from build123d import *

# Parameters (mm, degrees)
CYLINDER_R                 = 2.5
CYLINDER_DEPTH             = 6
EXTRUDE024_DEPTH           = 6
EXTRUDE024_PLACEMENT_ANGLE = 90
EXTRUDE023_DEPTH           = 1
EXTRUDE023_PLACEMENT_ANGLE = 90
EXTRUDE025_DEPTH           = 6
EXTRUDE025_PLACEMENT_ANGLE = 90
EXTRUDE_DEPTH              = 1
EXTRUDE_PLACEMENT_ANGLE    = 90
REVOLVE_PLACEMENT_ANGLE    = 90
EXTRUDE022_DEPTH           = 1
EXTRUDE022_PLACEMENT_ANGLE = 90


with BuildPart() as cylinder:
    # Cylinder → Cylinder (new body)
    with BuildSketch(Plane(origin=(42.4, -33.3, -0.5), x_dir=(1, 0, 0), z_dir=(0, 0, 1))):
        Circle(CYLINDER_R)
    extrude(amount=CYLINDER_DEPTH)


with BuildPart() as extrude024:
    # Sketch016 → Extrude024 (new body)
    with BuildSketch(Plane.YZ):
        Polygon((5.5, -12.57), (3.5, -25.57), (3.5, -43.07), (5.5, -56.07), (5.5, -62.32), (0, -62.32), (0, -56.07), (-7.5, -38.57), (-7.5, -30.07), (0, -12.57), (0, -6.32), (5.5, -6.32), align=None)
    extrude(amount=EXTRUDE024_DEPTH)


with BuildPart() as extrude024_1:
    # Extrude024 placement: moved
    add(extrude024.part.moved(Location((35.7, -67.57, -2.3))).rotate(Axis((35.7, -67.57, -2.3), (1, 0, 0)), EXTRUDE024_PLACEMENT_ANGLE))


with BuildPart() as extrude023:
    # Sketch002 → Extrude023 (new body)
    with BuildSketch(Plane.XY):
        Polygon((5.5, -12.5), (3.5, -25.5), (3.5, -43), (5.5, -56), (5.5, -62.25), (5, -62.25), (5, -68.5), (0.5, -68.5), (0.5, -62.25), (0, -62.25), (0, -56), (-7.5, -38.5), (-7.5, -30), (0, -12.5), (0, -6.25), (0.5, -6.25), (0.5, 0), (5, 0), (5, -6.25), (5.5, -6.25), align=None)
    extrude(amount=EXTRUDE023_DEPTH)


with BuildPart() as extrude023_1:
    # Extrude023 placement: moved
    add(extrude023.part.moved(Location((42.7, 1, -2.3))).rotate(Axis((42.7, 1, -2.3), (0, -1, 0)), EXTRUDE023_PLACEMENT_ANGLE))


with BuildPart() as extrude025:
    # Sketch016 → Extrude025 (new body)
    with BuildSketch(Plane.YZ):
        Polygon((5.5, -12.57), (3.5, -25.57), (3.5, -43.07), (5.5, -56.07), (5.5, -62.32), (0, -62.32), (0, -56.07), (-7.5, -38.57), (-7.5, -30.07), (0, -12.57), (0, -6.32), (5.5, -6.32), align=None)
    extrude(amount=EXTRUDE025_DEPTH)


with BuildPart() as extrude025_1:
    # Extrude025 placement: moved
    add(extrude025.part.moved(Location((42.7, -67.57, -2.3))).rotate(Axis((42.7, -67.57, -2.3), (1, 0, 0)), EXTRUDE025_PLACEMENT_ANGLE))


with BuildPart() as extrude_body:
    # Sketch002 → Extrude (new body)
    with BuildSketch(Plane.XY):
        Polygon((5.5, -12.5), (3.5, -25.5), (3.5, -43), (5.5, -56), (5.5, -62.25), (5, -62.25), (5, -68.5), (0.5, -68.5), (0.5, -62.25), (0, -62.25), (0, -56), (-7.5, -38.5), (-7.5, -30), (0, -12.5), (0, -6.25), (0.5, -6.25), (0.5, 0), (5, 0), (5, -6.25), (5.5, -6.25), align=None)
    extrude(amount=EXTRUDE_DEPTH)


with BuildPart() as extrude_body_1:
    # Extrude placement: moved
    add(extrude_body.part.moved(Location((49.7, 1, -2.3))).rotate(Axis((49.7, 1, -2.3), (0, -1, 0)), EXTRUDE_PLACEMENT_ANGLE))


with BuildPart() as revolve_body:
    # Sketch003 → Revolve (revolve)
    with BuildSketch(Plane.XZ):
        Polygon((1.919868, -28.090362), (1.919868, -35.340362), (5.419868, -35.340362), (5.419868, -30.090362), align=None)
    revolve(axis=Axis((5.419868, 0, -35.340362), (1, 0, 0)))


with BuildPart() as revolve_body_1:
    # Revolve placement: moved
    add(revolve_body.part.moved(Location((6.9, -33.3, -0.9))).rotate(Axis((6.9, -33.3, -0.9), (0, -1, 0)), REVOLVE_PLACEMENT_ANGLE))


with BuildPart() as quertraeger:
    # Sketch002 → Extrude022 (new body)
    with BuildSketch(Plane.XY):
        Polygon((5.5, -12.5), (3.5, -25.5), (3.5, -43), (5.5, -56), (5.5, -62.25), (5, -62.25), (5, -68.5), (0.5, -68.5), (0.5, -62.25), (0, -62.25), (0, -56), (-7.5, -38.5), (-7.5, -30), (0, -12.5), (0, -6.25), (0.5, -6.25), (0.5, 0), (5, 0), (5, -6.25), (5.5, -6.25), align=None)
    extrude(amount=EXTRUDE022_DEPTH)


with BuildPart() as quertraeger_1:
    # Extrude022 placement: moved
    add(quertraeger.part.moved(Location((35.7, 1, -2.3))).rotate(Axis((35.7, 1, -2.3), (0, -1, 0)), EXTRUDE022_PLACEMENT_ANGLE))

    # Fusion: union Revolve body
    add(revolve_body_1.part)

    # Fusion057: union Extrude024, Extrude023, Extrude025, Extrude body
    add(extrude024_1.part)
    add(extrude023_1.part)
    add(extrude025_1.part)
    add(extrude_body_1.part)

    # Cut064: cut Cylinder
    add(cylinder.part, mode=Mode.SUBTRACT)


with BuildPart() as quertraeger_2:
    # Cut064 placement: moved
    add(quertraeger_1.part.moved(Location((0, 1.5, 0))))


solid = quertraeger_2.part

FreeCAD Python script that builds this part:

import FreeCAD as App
import Part
import Sketcher

V = App.Vector

doc = App.newDocument("Part")
params = doc.addObject("Spreadsheet::Sheet", "Params")
for row, (alias, value) in enumerate([
    ("sketch1_diameter", "5 mm"),
    ("pad1_length", "6 mm"),
    ("sketch2_width", "5.5 mm"),
    ("sketch2_height", "8.5 mm"),
    ("sketch2_height2", "17.5 mm"),
    ("sketch2_height3", "6.25 mm"),
    ("pad2_length", "6 mm"),
    ("sketch3_width", "0.5 mm"),
    ("sketch3_width2", "4.5 mm"),
    ("sketch3_height", "8.5 mm"),
    ("sketch3_height2", "17.5 mm"),
    ("pad3_length", "1 mm"),
    ("sketch4_width", "5.5 mm"),
    ("sketch4_height", "8.5 mm"),
    ("sketch4_height2", "17.5 mm"),
    ("sketch4_height3", "6.25 mm"),
    ("pad4_length", "6 mm"),
    ("sketch5_width", "0.5 mm"),
    ("sketch5_width2", "4.5 mm"),
    ("sketch5_height", "8.5 mm"),
    ("sketch5_height2", "17.5 mm"),
    ("pad5_length", "1 mm"),
    ("sketch6_width", "3.5 mm"),
    ("sketch6_height", "7.25 mm"),
    ("revolution_angle", "360 deg"),
    ("sketch7_width", "0.5 mm"),
    ("sketch7_width2", "4.5 mm"),
    ("sketch7_height", "8.5 mm"),
    ("sketch7_height2", "17.5 mm"),
    ("pad6_length", "1 mm"),
], start=1):
    params.set(f"A{row}", alias)
    params.set(f"B{row}", "=" + value)
    params.setAlias(f"B{row}", alias)

body = doc.addObject("PartDesign::Body", "Body")

# Sketch on XY plane
sketch1 = body.newObject("Sketcher::SketchObject", "Sketch")
sketch1.AttachmentSupport = (doc.getObject("XY_Plane"), [""])
sketch1.MapMode = "FlatFace"
sketch1.AttachmentOffset = App.Placement(V(0, 0, -0.5), App.Rotation())
sketch1.addGeometry(Part.Circle(V(42.4, -33.3, 0), V(0, 0, 1), 2.5), False)
sketch1.addConstraint(Sketcher.Constraint("Diameter", 0, 5.0))
sketch1.addConstraint(Sketcher.Constraint("DistanceX", -1, 1, 0, 3, 42.4))
sketch1.addConstraint(Sketcher.Constraint("DistanceY", 0, 3, -1, 1, 33.3))
sketch1.setExpression("Constraints[0]", "Params.sketch1_diameter")
pad1 = body.newObject("PartDesign::Pad", "Pad")
pad1.Profile = sketch1
pad1.setExpression("Length", "Params.pad1_length")
body2 = doc.addObject("PartDesign::Body", "Body001")

# Sketch on YZ plane
sketch2 = body2.newObject("Sketcher::SketchObject", "Sketch001")
sketch2.AttachmentSupport = (doc.getObject("YZ_Plane001"), [""])
sketch2.MapMode = "FlatFace"
sketch2.addGeometry(Part.LineSegment(V(4, -26, 0), V(6, -13, 0)), False)
sketch2.addGeometry(Part.LineSegment(V(6, -13, 0), V(6, -6, 0)), False)
sketch2.addGeometry(Part.LineSegment(V(6, -6, 0), V(0, -6, 0)), False)
sketch2.addGeometry(Part.LineSegment(V(0, -6, 0), V(0, -13, 0)), False)
sketch2.addGeometry(Part.LineSegment(V(0, -13, 0), V(-8, -30, 0)), False)
sketch2.addGeometry(Part.LineSegment(V(-8, -30, 0), V(-8, -39, 0)), False)
sketch2.addGeometry(Part.LineSegment(V(-8, -39, 0), V(0, -56, 0)), False)
sketch2.addGeometry(Part.LineSegment(V(0, -56, 0), V(0, -62, 0)), False)
sketch2.addGeometry(Part.LineSegment(V(0, -62, 0), V(6, -62, 0)), False)
sketch2.addGeometry(Part.LineSegment(V(6, -62, 0), V(6, -56, 0)), False)
sketch2.addGeometry(Part.LineSegment(V(6, -56, 0), V(4, -43, 0)), False)
sketch2.addGeometry(Part.LineSegment(V(4, -43, 0), V(4, -26, 0)), False)
sketch2.addConstraint(Sketcher.Constraint("Coincident", 0, 2, 1, 1))
sketch2.addConstraint(Sketcher.Constraint("Coincident", 1, 2, 2, 1))
sketch2.addConstraint(Sketcher.Constraint("Coincident", 2, 2, 3, 1))
sketch2.addConstraint(Sketcher.Constraint("Coincident", 3, 2, 4, 1))
sketch2.addConstraint(Sketcher.Constraint("Coincident", 4, 2, 5, 1))
sketch2.addConstraint(Sketcher.Constraint("Coincident", 5, 2, 6, 1))
sketch2.addConstraint(Sketcher.Constraint("Coincident", 6, 2, 7, 1))
sketch2.addConstraint(Sketcher.Constraint("Coincident", 7, 2, 8, 1))
sketch2.addConstraint(Sketcher.Constraint("Coincident", 8, 2, 9, 1))
sketch2.addConstraint(Sketcher.Constraint("Coincident", 9, 2, 10, 1))
sketch2.addConstraint(Sketcher.Constraint("Coincident", 10, 2, 11, 1))
sketch2.addConstraint(Sketcher.Constraint("Coincident", 11, 2, 0, 1))
sketch2.addConstraint(Sketcher.Constraint("Vertical", 1))
sketch2.addConstraint(Sketcher.Constraint("Horizontal", 2))
sketch2.addConstraint(Sketcher.Constraint("Vertical", 3))
sketch2.addConstraint(Sketcher.Constraint("Vertical", 5))
sketch2.addConstraint(Sketcher.Constraint("Vertical", 7))
sketch2.addConstraint(Sketcher.Constraint("Horizontal", 8))
sketch2.addConstraint(Sketcher.Constraint("Vertical", 9))
sketch2.addConstraint(Sketcher.Constraint("Vertical", 11))
sketch2.addConstraint(Sketcher.Constraint("PointOnObject", 2, 2, -2))
sketch2.addConstraint(Sketcher.Constraint("PointOnObject", 6, 2, -2))
sketch2.addConstraint(Sketcher.Constraint("Horizontal", 0, 2, 3, 2))
sketch2.addConstraint(Sketcher.Constraint("Horizontal", 6, 2, 9, 2))
sketch2.addConstraint(Sketcher.Constraint("Vertical", 1, 2, 8, 2))
sketch2.addConstraint(Sketcher.Constraint("Equal", 3, 7))
sketch2.addConstraint(Sketcher.Constraint("Equal", 4, 6))
sketch2.addConstraint(Sketcher.Constraint("Equal", 0, 10))
sketch2.addConstraint(Sketcher.Constraint("DistanceX", 2, 2, 2, 1, 5.5))
sketch2.addConstraint(Sketcher.Constraint("DistanceY", 5, 2, 5, 1, 8.5))
sketch2.addConstraint(Sketcher.Constraint("DistanceY", 11, 1, 11, 2, 17.5))
sketch2.addConstraint(Sketcher.Constraint("DistanceX", 4, 2, 0, 2, 13.0))
sketch2.addConstraint(Sketcher.Constraint("DistanceY", 5, 2, 3, 2, 26.0))
sketch2.addConstraint(Sketcher.Constraint("DistanceX", 5, 2, 10, 2, 11.0))
sketch2.addConstraint(Sketcher.Constraint("DistanceY", 1, 1, 1, 2, 6.25))
sketch2.addConstraint(Sketcher.Constraint("DistanceY", 0, 2, -1, 1, 12.57))
sketch2.setExpression("Constraints[28]", "Params.sketch2_width")
sketch2.setExpression("Constraints[29]", "Params.sketch2_height")
sketch2.setExpression("Constraints[30]", "Params.sketch2_height2")
sketch2.setExpression("Constraints[34]", "Params.sketch2_height3")
pad2 = body2.newObject("PartDesign::Pad", "Pad001")
pad2.Profile = sketch2
pad2.setExpression("Length", "Params.pad2_length")
body3 = doc.addObject("PartDesign::Body", "Body002")
doc.recompute()

body2.Placement = App.Placement(V(35.7, -67.57, -2.3), App.Rotation(V(1, 0, 0), 90))
boolean = body3.newObject("PartDesign::Boolean", "Boolean")
boolean.Type = "Fuse"
boolean.addObjects([body2])
body4 = doc.addObject("PartDesign::Body", "Body003")

# Sketch on XY plane
sketch3 = body4.newObject("Sketcher::SketchObject", "Sketch002")
sketch3.AttachmentSupport = (doc.getObject("XY_Plane003"), [""])
sketch3.MapMode = "FlatFace"
sketch3.addGeometry(Part.LineSegment(V(3.5, -25.5, 0), V(5.5, -12.5, 0)), False)
sketch3.addGeometry(Part.LineSegment(V(5.5, -12.5, 0), V(5.5, -6.2, 0)), False)
sketch3.addGeometry(Part.LineSegment(V(5.5, -6.2, 0), V(5, -6.2, 0)), False)
sketch3.addGeometry(Part.LineSegment(V(5, -6.2, 0), V(5, 0, 0)), False)
sketch3.addGeometry(Part.LineSegment(V(5, 0, 0), V(0.5, 0, 0)), False)
sketch3.addGeometry(Part.LineSegment(V(0.5, 0, 0), V(0.5, -6.2, 0)), False)
sketch3.addGeometry(Part.LineSegment(V(0.5, -6.2, 0), V(0, -6.2, 0)), False)
sketch3.addGeometry(Part.LineSegment(V(0, -6.2, 0), V(0, -12.5, 0)), False)
sketch3.addGeometry(Part.LineSegment(V(0, -12.5, 0), V(-7.5, -30, 0)), False)
sketch3.addGeometry(Part.LineSegment(V(-7.5, -30, 0), V(-7.5, -38.5, 0)), False)
sketch3.addGeometry(Part.LineSegment(V(-7.5, -38.5, 0), V(0, -56, 0)), False)
sketch3.addGeometry(Part.LineSegment(V(0, -56, 0), V(0, -62.2, 0)), False)
sketch3.addGeometry(Part.LineSegment(V(0, -62.2, 0), V(0.5, -62.2, 0)), False)
sketch3.addGeometry(Part.LineSegment(V(0.5, -62.2, 0), V(0.5, -68.5, 0)), False)
sketch3.addGeometry(Part.LineSegment(V(0.5, -68.5, 0), V(5, -68.5, 0)), False)
sketch3.addGeometry(Part.LineSegment(V(5, -68.5, 0), V(5, -62.2, 0)), False)
sketch3.addGeometry(Part.LineSegment(V(5, -62.2, 0), V(5.5, -62.2, 0)), False)
sketch3.addGeometry(Part.LineSegment(V(5.5, -62.2, 0), V(5.5, -56, 0)), False)
sketch3.addGeometry(Part.LineSegment(V(5.5, -56, 0), V(3.5, -43, 0)), False)
sketch3.addGeometry(Part.LineSegment(V(3.5, -43, 0), V(3.5, -25.5, 0)), False)
sketch3.addConstraint(Sketcher.Constraint("Coincident", 0, 2, 1, 1))
sketch3.addConstraint(Sketcher.Constraint("Coincident", 1, 2, 2, 1))
sketch3.addConstraint(Sketcher.Constraint("Coincident", 2, 2, 3, 1))
sketch3.addConstraint(Sketcher.Constraint("Coincident", 3, 2, 4, 1))
sketch3.addConstraint(Sketcher.Constraint("Coincident", 4, 2, 5, 1))
sketch3.addConstraint(Sketcher.Constraint("Coincident", 5, 2, 6, 1))
sketch3.addConstraint(Sketcher.Constraint("Coincident", 6, 2, 7, 1))
sketch3.addConstraint(Sketcher.Constraint("Coincident", 7, 2, 8, 1))
sketch3.addConstraint(Sketcher.Constraint("Coincident", 8, 2, 9, 1))
sketch3.addConstraint(Sketcher.Constraint("Coincident", 9, 2, 10, 1))
sketch3.addConstraint(Sketcher.Constraint("Coincident", 10, 2, 11, 1))
sketch3.addConstraint(Sketcher.Constraint("Coincident", 11, 2, 12, 1))
sketch3.addConstraint(Sketcher.Constraint("Coincident", 12, 2, 13, 1))
sketch3.addConstraint(Sketcher.Constraint("Coincident", 13, 2, 14, 1))
sketch3.addConstraint(Sketcher.Constraint("Coincident", 14, 2, 15, 1))
sketch3.addConstraint(Sketcher.Constraint("Coincident", 15, 2, 16, 1))
sketch3.addConstraint(Sketcher.Constraint("Coincident", 16, 2, 17, 1))
sketch3.addConstraint(Sketcher.Constraint("Coincident", 17, 2, 18, 1))
sketch3.addConstraint(Sketcher.Constraint("Coincident", 18, 2, 19, 1))
sketch3.addConstraint(Sketcher.Constraint("Coincident", 19, 2, 0, 1))
sketch3.addConstraint(Sketcher.Constraint("Vertical", 1))
sketch3.addConstraint(Sketcher.Constraint("Horizontal", 2))
sketch3.addConstraint(Sketcher.Constraint("Vertical", 3))
sketch3.addConstraint(Sketcher.Constraint("Horizontal", 4))
sketch3.addConstraint(Sketcher.Constraint("Vertical", 5))
sketch3.addConstraint(Sketcher.Constraint("Horizontal", 6))
sketch3.addConstraint(Sketcher.Constraint("Vertical", 7))
sketch3.addConstraint(Sketcher.Constraint("Vertical", 9))
sketch3.addConstraint(Sketcher.Constraint("Vertical", 11))
sketch3.addConstraint(Sketcher.Constraint("Horizontal", 12))
sketch3.addConstraint(Sketcher.Constraint("Vertical", 13))
sketch3.addConstraint(Sketcher.Constraint("Horizontal", 14))
sketch3.addConstraint(Sketcher.Constraint("Vertical", 15))
sketch3.addConstraint(Sketcher.Constraint("Horizontal", 16))
sketch3.addConstraint(Sketcher.Constraint("Vertical", 17))
sketch3.addConstraint(Sketcher.Constraint("Vertical", 19))
sketch3.addConstraint(Sketcher.Constraint("PointOnObject", 3, 2, -1))
sketch3.addConstraint(Sketcher.Constraint("PointOnObject", 6, 2, -2))
sketch3.addConstraint(Sketcher.Constraint("PointOnObject", 10, 2, -2))
sketch3.addConstraint(Sketcher.Constraint("Horizontal", 2, 2, 5, 2))
sketch3.addConstraint(Sketcher.Constraint("Horizontal", 0, 2, 7, 2))
sketch3.addConstraint(Sketcher.Constraint("Horizontal", 12, 2, 15, 2))
sketch3.addConstraint(Sketcher.Constraint("Horizontal", 10, 2, 17, 2))
sketch3.addConstraint(Sketcher.Constraint("Vertical", 5, 2, 12, 2))
sketch3.addConstraint(Sketcher.Constraint("Vertical", 3, 2, 14, 2))
sketch3.addConstraint(Sketcher.Constraint("Vertical", 1, 2, 16, 2))
sketch3.addConstraint(Sketcher.Constraint("Equal", 2, 6))
sketch3.addConstraint(Sketcher.Constraint("Equal", 1, 3))
sketch3.addConstraint(Sketcher.Constraint("Equal", 7, 11))
sketch3.addConstraint(Sketcher.Constraint("Equal", 11, 13))
sketch3.addConstraint(Sketcher.Constraint("Equal", 8, 10))
sketch3.addConstraint(Sketcher.Constraint("Equal", 0, 18))
sketch3.addConstraint(Sketcher.Constraint("DistanceX", 2, 2, 2, 1, 0.5))
sketch3.addConstraint(Sketcher.Constraint("DistanceX", 4, 2, 4, 1, 4.5))
sketch3.addConstraint(Sketcher.Constraint("DistanceY", 9, 2, 9, 1, 8.5))
sketch3.addConstraint(Sketcher.Constraint("DistanceY", 19, 1, 19, 2, 17.5))
sketch3.addConstraint(Sketcher.Constraint("DistanceY", 8, 2, -1, 1, 30.0))
sketch3.addConstraint(Sketcher.Constraint("DistanceY", 10, 2, -1, 1, 56.0))
sketch3.addConstraint(Sketcher.Constraint("DistanceX", 8, 2, 0, 2, 13.0))
sketch3.addConstraint(Sketcher.Constraint("DistanceX", 9, 2, 18, 2, 11.0))
sketch3.setExpression("Constraints[52]", "Params.sketch3_width")
sketch3.setExpression("Constraints[53]", "Params.sketch3_width2")
sketch3.setExpression("Constraints[54]", "Params.sketch3_height")
sketch3.setExpression("Constraints[55]", "Params.sketch3_height2")
pad3 = body4.newObject("PartDesign::Pad", "Pad002")
pad3.Profile = sketch3
pad3.setExpression("Length", "Params.pad3_length")
body5 = doc.addObject("PartDesign::Body", "Body004")
doc.recompute()

body4.Placement = App.Placement(V(42.7, 1, -2.3), App.Rotation(V(0, -1, 0), 90))
boolean2 = body5.newObject("PartDesign::Boolean", "Boolean001")
boolean2.Type = "Fuse"
boolean2.addObjects([body4])
body6 = doc.addObject("PartDesign::Body", "Body005")

# Sketch on YZ plane
sketch4 = body6.newObject("Sketcher::SketchObject", "Sketch003")
sketch4.AttachmentSupport = (doc.getObject("YZ_Plane005"), [""])
sketch4.MapMode = "FlatFace"
sketch4.addGeometry(Part.LineSegment(V(4, -26, 0), V(6, -13, 0)), False)
sketch4.addGeometry(Part.LineSegment(V(6, -13, 0), V(6, -6, 0)), False)
sketch4.addGeometry(Part.LineSegment(V(6, -6, 0), V(0, -6, 0)), False)
sketch4.addGeometry(Part.LineSegment(V(0, -6, 0), V(0, -13, 0)), False)
sketch4.addGeometry(Part.LineSegment(V(0, -13, 0), V(-8, -30, 0)), False)
sketch4.addGeometry(Part.LineSegment(V(-8, -30, 0), V(-8, -39, 0)), False)
sketch4.addGeometry(Part.LineSegment(V(-8, -39, 0), V(0, -56, 0)), False)
sketch4.addGeometry(Part.LineSegment(V(0, -56, 0), V(0, -62, 0)), False)
sketch4.addGeometry(Part.LineSegment(V(0, -62, 0), V(6, -62, 0)), False)
sketch4.addGeometry(Part.LineSegment(V(6, -62, 0), V(6, -56, 0)), False)
sketch4.addGeometry(Part.LineSegment(V(6, -56, 0), V(4, -43, 0)), False)
sketch4.addGeometry(Part.LineSegment(V(4, -43, 0), V(4, -26, 0)), False)
sketch4.addConstraint(Sketcher.Constraint("Coincident", 0, 2, 1, 1))
sketch4.addConstraint(Sketcher.Constraint("Coincident", 1, 2, 2, 1))
sketch4.addConstraint(Sketcher.Constraint("Coincident", 2, 2, 3, 1))
sketch4.addConstraint(Sketcher.Constraint("Coincident", 3, 2, 4, 1))
sketch4.addConstraint(Sketcher.Constraint("Coincident", 4, 2, 5, 1))
sketch4.addConstraint(Sketcher.Constraint("Coincident", 5, 2, 6, 1))
sketch4.addConstraint(Sketcher.Constraint("Coincident", 6, 2, 7, 1))
sketch4.addConstraint(Sketcher.Constraint("Coincident", 7, 2, 8, 1))
sketch4.addConstraint(Sketcher.Constraint("Coincident", 8, 2, 9, 1))
sketch4.addConstraint(Sketcher.Constraint("Coincident", 9, 2, 10, 1))
sketch4.addConstraint(Sketcher.Constraint("Coincident", 10, 2, 11, 1))
sketch4.addConstraint(Sketcher.Constraint("Coincident", 11, 2, 0, 1))
sketch4.addConstraint(Sketcher.Constraint("Vertical", 1))
sketch4.addConstraint(Sketcher.Constraint("Horizontal", 2))
sketch4.addConstraint(Sketcher.Constraint("Vertical", 3))
sketch4.addConstraint(Sketcher.Constraint("Vertical", 5))
sketch4.addConstraint(Sketcher.Constraint("Vertical", 7))
sketch4.addConstraint(Sketcher.Constraint("Horizontal", 8))
sketch4.addConstraint(Sketcher.Constraint("Vertical", 9))
sketch4.addConstraint(Sketcher.Constraint("Vertical", 11))
sketch4.addConstraint(Sketcher.Constraint("PointOnObject", 2, 2, -2))
sketch4.addConstraint(Sketcher.Constraint("PointOnObject", 6, 2, -2))
sketch4.addConstraint(Sketcher.Constraint("Horizontal", 0, 2, 3, 2))
sketch4.addConstraint(Sketcher.Constraint("Horizontal", 6, 2, 9, 2))
sketch4.addConstraint(Sketcher.Constraint("Vertical", 1, 2, 8, 2))
sketch4.addConstraint(Sketcher.Constraint("Equal", 3, 7))
sketch4.addConstraint(Sketcher.Constraint("Equal", 4, 6))
sketch4.addConstraint(Sketcher.Constraint("Equal", 0, 10))
sketch4.addConstraint(Sketcher.Constraint("DistanceX", 2, 2, 2, 1, 5.5))
sketch4.addConstraint(Sketcher.Constraint("DistanceY", 5, 2, 5, 1, 8.5))
sketch4.addConstraint(Sketcher.Constraint("DistanceY", 11, 1, 11, 2, 17.5))
sketch4.addConstraint(Sketcher.Constraint("DistanceX", 4, 2, 0, 2, 13.0))
sketch4.addConstraint(Sketcher.Constraint("DistanceY", 5, 2, 3, 2, 26.0))
sketch4.addConstraint(Sketcher.Constraint("DistanceX", 5, 2, 10, 2, 11.0))
sketch4.addConstraint(Sketcher.Constraint("DistanceY", 1, 1, 1, 2, 6.25))
sketch4.addConstraint(Sketcher.Constraint("DistanceY", 0, 2, -1, 1, 12.57))
sketch4.setExpression("Constraints[28]", "Params.sketch4_width")
sketch4.setExpression("Constraints[29]", "Params.sketch4_height")
sketch4.setExpression("Constraints[30]", "Params.sketch4_height2")
sketch4.setExpression("Constraints[34]", "Params.sketch4_height3")
pad4 = body6.newObject("PartDesign::Pad", "Pad003")
pad4.Profile = sketch4
pad4.setExpression("Length", "Params.pad4_length")
body7 = doc.addObject("PartDesign::Body", "Body006")
doc.recompute()

body6.Placement = App.Placement(V(42.7, -67.57, -2.3), App.Rotation(V(1, 0, 0), 90))
boolean3 = body7.newObject("PartDesign::Boolean", "Boolean002")
boolean3.Type = "Fuse"
boolean3.addObjects([body6])
body8 = doc.addObject("PartDesign::Body", "Body007")

# Sketch on XY plane
sketch5 = body8.newObject("Sketcher::SketchObject", "Sketch004")
sketch5.AttachmentSupport = (doc.getObject("XY_Plane007"), [""])
sketch5.MapMode = "FlatFace"
sketch5.addGeometry(Part.LineSegment(V(3.5, -25.5, 0), V(5.5, -12.5, 0)), False)
sketch5.addGeometry(Part.LineSegment(V(5.5, -12.5, 0), V(5.5, -6.2, 0)), False)
sketch5.addGeometry(Part.LineSegment(V(5.5, -6.2, 0), V(5, -6.2, 0)), False)
sketch5.addGeometry(Part.LineSegment(V(5, -6.2, 0), V(5, 0, 0)), False)
sketch5.addGeometry(Part.LineSegment(V(5, 0, 0), V(0.5, 0, 0)), False)
sketch5.addGeometry(Part.LineSegment(V(0.5, 0, 0), V(0.5, -6.2, 0)), False)
sketch5.addGeometry(Part.LineSegment(V(0.5, -6.2, 0), V(0, -6.2, 0)), False)
sketch5.addGeometry(Part.LineSegment(V(0, -6.2, 0), V(0, -12.5, 0)), False)
sketch5.addGeometry(Part.LineSegment(V(0, -12.5, 0), V(-7.5, -30, 0)), False)
sketch5.addGeometry(Part.LineSegment(V(-7.5, -30, 0), V(-7.5, -38.5, 0)), False)
sketch5.addGeometry(Part.LineSegment(V(-7.5, -38.5, 0), V(0, -56, 0)), False)
sketch5.addGeometry(Part.LineSegment(V(0, -56, 0), V(0, -62.2, 0)), False)
sketch5.addGeometry(Part.LineSegment(V(0, -62.2, 0), V(0.5, -62.2, 0)), False)
sketch5.addGeometry(Part.LineSegment(V(0.5, -62.2, 0), V(0.5, -68.5, 0)), False)
sketch5.addGeometry(Part.LineSegment(V(0.5, -68.5, 0), V(5, -68.5, 0)), False)
sketch5.addGeometry(Part.LineSegment(V(5, -68.5, 0), V(5, -62.2, 0)), False)
sketch5.addGeometry(Part.LineSegment(V(5, -62.2, 0), V(5.5, -62.2, 0)), False)
sketch5.addGeometry(Part.LineSegment(V(5.5, -62.2, 0), V(5.5, -56, 0)), False)
sketch5.addGeometry(Part.LineSegment(V(5.5, -56, 0), V(3.5, -43, 0)), False)
sketch5.addGeometry(Part.LineSegment(V(3.5, -43, 0), V(3.5, -25.5, 0)), False)
sketch5.addConstraint(Sketcher.Constraint("Coincident", 0, 2, 1, 1))
sketch5.addConstraint(Sketcher.Constraint("Coincident", 1, 2, 2, 1))
sketch5.addConstraint(Sketcher.Constraint("Coincident", 2, 2, 3, 1))
sketch5.addConstraint(Sketcher.Constraint("Coincident", 3, 2, 4, 1))
sketch5.addConstraint(Sketcher.Constraint("Coincident", 4, 2, 5, 1))
sketch5.addConstraint(Sketcher.Constraint("Coincident", 5, 2, 6, 1))
sketch5.addConstraint(Sketcher.Constraint("Coincident", 6, 2, 7, 1))
sketch5.addConstraint(Sketcher.Constraint("Coincident", 7, 2, 8, 1))
sketch5.addConstraint(Sketcher.Constraint("Coincident", 8, 2, 9, 1))
sketch5.addConstraint(Sketcher.Constraint("Coincident", 9, 2, 10, 1))
sketch5.addConstraint(Sketcher.Constraint("Coincident", 10, 2, 11, 1))
sketch5.addConstraint(Sketcher.Constraint("Coincident", 11, 2, 12, 1))
sketch5.addConstraint(Sketcher.Constraint("Coincident", 12, 2, 13, 1))
sketch5.addConstraint(Sketcher.Constraint("Coincident", 13, 2, 14, 1))
sketch5.addConstraint(Sketcher.Constraint("Coincident", 14, 2, 15, 1))
sketch5.addConstraint(Sketcher.Constraint("Coincident", 15, 2, 16, 1))
sketch5.addConstraint(Sketcher.Constraint("Coincident", 16, 2, 17, 1))
sketch5.addConstraint(Sketcher.Constraint("Coincident", 17, 2, 18, 1))
sketch5.addConstraint(Sketcher.Constraint("Coincident", 18, 2, 19, 1))
sketch5.addConstraint(Sketcher.Constraint("Coincident", 19, 2, 0, 1))
sketch5.addConstraint(Sketcher.Constraint("Vertical", 1))
sketch5.addConstraint(Sketcher.Constraint("Horizontal", 2))
sketch5.addConstraint(Sketcher.Constraint("Vertical", 3))
sketch5.addConstraint(Sketcher.Constraint("Horizontal", 4))
sketch5.addConstraint(Sketcher.Constraint("Vertical", 5))
sketch5.addConstraint(Sketcher.Constraint("Horizontal", 6))
sketch5.addConstraint(Sketcher.Constraint("Vertical", 7))
sketch5.addConstraint(Sketcher.Constraint("Vertical", 9))
sketch5.addConstraint(Sketcher.Constraint("Vertical", 11))
sketch5.addConstraint(Sketcher.Constraint("Horizontal", 12))
sketch5.addConstraint(Sketcher.Constraint("Vertical", 13))
sketch5.addConstraint(Sketcher.Constraint("Horizontal", 14))
sketch5.addConstraint(Sketcher.Constraint("Vertical", 15))
sketch5.addConstraint(Sketcher.Constraint("Horizontal", 16))
sketch5.addConstraint(Sketcher.Constraint("Vertical", 17))
sketch5.addConstraint(Sketcher.Constraint("Vertical", 19))
sketch5.addConstraint(Sketcher.Constraint("PointOnObject", 3, 2, -1))
sketch5.addConstraint(Sketcher.Constraint("PointOnObject", 6, 2, -2))
sketch5.addConstraint(Sketcher.Constraint("PointOnObject", 10, 2, -2))
sketch5.addConstraint(Sketcher.Constraint("Horizontal", 2, 2, 5, 2))
sketch5.addConstraint(Sketcher.Constraint("Horizontal", 0, 2, 7, 2))
sketch5.addConstraint(Sketcher.Constraint("Horizontal", 12, 2, 15, 2))
sketch5.addConstraint(Sketcher.Constraint("Horizontal", 10, 2, 17, 2))
sketch5.addConstraint(Sketcher.Constraint("Vertical", 5, 2, 12, 2))
sketch5.addConstraint(Sketcher.Constraint("Vertical", 3, 2, 14, 2))
sketch5.addConstraint(Sketcher.Constraint("Vertical", 1, 2, 16, 2))
sketch5.addConstraint(Sketcher.Constraint("Equal", 2, 6))
sketch5.addConstraint(Sketcher.Constraint("Equal", 1, 3))
sketch5.addConstraint(Sketcher.Constraint("Equal", 7, 11))
sketch5.addConstraint(Sketcher.Constraint("Equal", 11, 13))
sketch5.addConstraint(Sketcher.Constraint("Equal", 8, 10))
sketch5.addConstraint(Sketcher.Constraint("Equal", 0, 18))
sketch5.addConstraint(Sketcher.Constraint("DistanceX", 2, 2, 2, 1, 0.5))
sketch5.addConstraint(Sketcher.Constraint("DistanceX", 4, 2, 4, 1, 4.5))
sketch5.addConstraint(Sketcher.Constraint("DistanceY", 9, 2, 9, 1, 8.5))
sketch5.addConstraint(Sketcher.Constraint("DistanceY", 19, 1, 19, 2, 17.5))
sketch5.addConstraint(Sketcher.Constraint("DistanceY", 8, 2, -1, 1, 30.0))
sketch5.addConstraint(Sketcher.Constraint("DistanceY", 10, 2, -1, 1, 56.0))
sketch5.addConstraint(Sketcher.Constraint("DistanceX", 8, 2, 0, 2, 13.0))
sketch5.addConstraint(Sketcher.Constraint("DistanceX", 9, 2, 18, 2, 11.0))
sketch5.setExpression("Constraints[52]", "Params.sketch5_width")
sketch5.setExpression("Constraints[53]", "Params.sketch5_width2")
sketch5.setExpression("Constraints[54]", "Params.sketch5_height")
sketch5.setExpression("Constraints[55]", "Params.sketch5_height2")
pad5 = body8.newObject("PartDesign::Pad", "Pad004")
pad5.Profile = sketch5
pad5.setExpression("Length", "Params.pad5_length")
body9 = doc.addObject("PartDesign::Body", "Body008")
doc.recompute()

body8.Placement = App.Placement(V(49.7, 1, -2.3), App.Rotation(V(0, -1, 0), 90))
boolean4 = body9.newObject("PartDesign::Boolean", "Boolean003")
boolean4.Type = "Fuse"
boolean4.addObjects([body8])
body10 = doc.addObject("PartDesign::Body", "Body009")

# Sketch on XZ plane
sketch6 = body10.newObject("Sketcher::SketchObject", "Sketch005")
sketch6.AttachmentSupport = (doc.getObject("XZ_Plane009"), [""])
sketch6.MapMode = "FlatFace"
sketch6.addGeometry(Part.LineSegment(V(1.9, -28.1, 0), V(1.9, -35.3, 0)), False)
sketch6.addGeometry(Part.LineSegment(V(1.9, -35.3, 0), V(5.4, -35.3, 0)), False)
sketch6.addGeometry(Part.LineSegment(V(5.4, -35.3, 0), V(5.4, -30.1, 0)), False)
sketch6.addGeometry(Part.LineSegment(V(5.4, -30.1, 0), V(1.9, -28.1, 0)), False)
sketch6.addGeometry(Part.LineSegment(V(1.9, -35.3, 0), V(5.4, -35.3, 0)), True)  # axis
sketch6.addConstraint(Sketcher.Constraint("Coincident", 0, 2, 1, 1))
sketch6.addConstraint(Sketcher.Constraint("Coincident", 1, 2, 2, 1))
sketch6.addConstraint(Sketcher.Constraint("Coincident", 2, 2, 3, 1))
sketch6.addConstraint(Sketcher.Constraint("Coincident", 3, 2, 0, 1))
sketch6.addConstraint(Sketcher.Constraint("Vertical", 0))
sketch6.addConstraint(Sketcher.Constraint("Horizontal", 1))
sketch6.addConstraint(Sketcher.Constraint("Vertical", 2))
sketch6.addConstraint(Sketcher.Constraint("Horizontal", 4))
sketch6.addConstraint(Sketcher.Constraint("Coincident", 4, 1, 0, 2))
sketch6.addConstraint(Sketcher.Constraint("Vertical", 2, 2, 4, 2))
sketch6.addConstraint(Sketcher.Constraint("DistanceX", 1, 1, 1, 2, 3.5))
sketch6.addConstraint(Sketcher.Constraint("DistanceY", 2, 2, 3, 2, 2.0))
sketch6.addConstraint(Sketcher.Constraint("DistanceY", 0, 2, 0, 1, 7.25))
sketch6.addConstraint(Sketcher.Constraint("DistanceY", 2, 2, -1, 1, 30.090362))
sketch6.addConstraint(Sketcher.Constraint("DistanceX", -1, 1, 0, 2, 1.919868))
sketch6.setExpression("Constraints[10]", "Params.sketch6_width")
sketch6.setExpression("Constraints[12]", "Params.sketch6_height")
revolution = body10.newObject("PartDesign::Revolution", "Revolution")
revolution.Profile = sketch6
revolution.ReferenceAxis = (sketch6, ["Axis0"])
revolution.setExpression("Angle", "Params.revolution_angle")
body11 = doc.addObject("PartDesign::Body", "Body010")
doc.recompute()

body10.Placement = App.Placement(V(6.9, -33.3, -0.9), App.Rotation(V(0, -1, 0), 90))
boolean5 = body11.newObject("PartDesign::Boolean", "Boolean004")
boolean5.Type = "Fuse"
boolean5.addObjects([body10])
body12 = doc.addObject("PartDesign::Body", "Body011")

# Sketch on XY plane
sketch7 = body12.newObject("Sketcher::SketchObject", "Sketch006")
sketch7.AttachmentSupport = (doc.getObject("XY_Plane011"), [""])
sketch7.MapMode = "FlatFace"
sketch7.addGeometry(Part.LineSegment(V(3.5, -25.5, 0), V(5.5, -12.5, 0)), False)
sketch7.addGeometry(Part.LineSegment(V(5.5, -12.5, 0), V(5.5, -6.2, 0)), False)
sketch7.addGeometry(Part.LineSegment(V(5.5, -6.2, 0), V(5, -6.2, 0)), False)
sketch7.addGeometry(Part.LineSegment(V(5, -6.2, 0), V(5, 0, 0)), False)
sketch7.addGeometry(Part.LineSegment(V(5, 0, 0), V(0.5, 0, 0)), False)
sketch7.addGeometry(Part.LineSegment(V(0.5, 0, 0), V(0.5, -6.2, 0)), False)
sketch7.addGeometry(Part.LineSegment(V(0.5, -6.2, 0), V(0, -6.2, 0)), False)
sketch7.addGeometry(Part.LineSegment(V(0, -6.2, 0), V(0, -12.5, 0)), False)
sketch7.addGeometry(Part.LineSegment(V(0, -12.5, 0), V(-7.5, -30, 0)), False)
sketch7.addGeometry(Part.LineSegment(V(-7.5, -30, 0), V(-7.5, -38.5, 0)), False)
sketch7.addGeometry(Part.LineSegment(V(-7.5, -38.5, 0), V(0, -56, 0)), False)
sketch7.addGeometry(Part.LineSegment(V(0, -56, 0), V(0, -62.2, 0)), False)
sketch7.addGeometry(Part.LineSegment(V(0, -62.2, 0), V(0.5, -62.2, 0)), False)
sketch7.addGeometry(Part.LineSegment(V(0.5, -62.2, 0), V(0.5, -68.5, 0)), False)
sketch7.addGeometry(Part.LineSegment(V(0.5, -68.5, 0), V(5, -68.5, 0)), False)
sketch7.addGeometry(Part.LineSegment(V(5, -68.5, 0), V(5, -62.2, 0)), False)
sketch7.addGeometry(Part.LineSegment(V(5, -62.2, 0), V(5.5, -62.2, 0)), False)
sketch7.addGeometry(Part.LineSegment(V(5.5, -62.2, 0), V(5.5, -56, 0)), False)
sketch7.addGeometry(Part.LineSegment(V(5.5, -56, 0), V(3.5, -43, 0)), False)
sketch7.addGeometry(Part.LineSegment(V(3.5, -43, 0), V(3.5, -25.5, 0)), False)
sketch7.addConstraint(Sketcher.Constraint("Coincident", 0, 2, 1, 1))
sketch7.addConstraint(Sketcher.Constraint("Coincident", 1, 2, 2, 1))
sketch7.addConstraint(Sketcher.Constraint("Coincident", 2, 2, 3, 1))
sketch7.addConstraint(Sketcher.Constraint("Coincident", 3, 2, 4, 1))
sketch7.addConstraint(Sketcher.Constraint("Coincident", 4, 2, 5, 1))
sketch7.addConstraint(Sketcher.Constraint("Coincident", 5, 2, 6, 1))
sketch7.addConstraint(Sketcher.Constraint("Coincident", 6, 2, 7, 1))
sketch7.addConstraint(Sketcher.Constraint("Coincident", 7, 2, 8, 1))
sketch7.addConstraint(Sketcher.Constraint("Coincident", 8, 2, 9, 1))
sketch7.addConstraint(Sketcher.Constraint("Coincident", 9, 2, 10, 1))
sketch7.addConstraint(Sketcher.Constraint("Coincident", 10, 2, 11, 1))
sketch7.addConstraint(Sketcher.Constraint("Coincident", 11, 2, 12, 1))
sketch7.addConstraint(Sketcher.Constraint("Coincident", 12, 2, 13, 1))
sketch7.addConstraint(Sketcher.Constraint("Coincident", 13, 2, 14, 1))
sketch7.addConstraint(Sketcher.Constraint("Coincident", 14, 2, 15, 1))
sketch7.addConstraint(Sketcher.Constraint("Coincident", 15, 2, 16, 1))
sketch7.addConstraint(Sketcher.Constraint("Coincident", 16, 2, 17, 1))
sketch7.addConstraint(Sketcher.Constraint("Coincident", 17, 2, 18, 1))
sketch7.addConstraint(Sketcher.Constraint("Coincident", 18, 2, 19, 1))
sketch7.addConstraint(Sketcher.Constraint("Coincident", 19, 2, 0, 1))
sketch7.addConstraint(Sketcher.Constraint("Vertical", 1))
sketch7.addConstraint(Sketcher.Constraint("Horizontal", 2))
sketch7.addConstraint(Sketcher.Constraint("Vertical", 3))
sketch7.addConstraint(Sketcher.Constraint("Horizontal", 4))
sketch7.addConstraint(Sketcher.Constraint("Vertical", 5))
sketch7.addConstraint(Sketcher.Constraint("Horizontal", 6))
sketch7.addConstraint(Sketcher.Constraint("Vertical", 7))
sketch7.addConstraint(Sketcher.Constraint("Vertical", 9))
sketch7.addConstraint(Sketcher.Constraint("Vertical", 11))
sketch7.addConstraint(Sketcher.Constraint("Horizontal", 12))
sketch7.addConstraint(Sketcher.Constraint("Vertical", 13))
sketch7.addConstraint(Sketcher.Constraint("Horizontal", 14))
sketch7.addConstraint(Sketcher.Constraint("Vertical", 15))
sketch7.addConstraint(Sketcher.Constraint("Horizontal", 16))
sketch7.addConstraint(Sketcher.Constraint("Vertical", 17))
sketch7.addConstraint(Sketcher.Constraint("Vertical", 19))
sketch7.addConstraint(Sketcher.Constraint("PointOnObject", 3, 2, -1))
sketch7.addConstraint(Sketcher.Constraint("PointOnObject", 6, 2, -2))
sketch7.addConstraint(Sketcher.Constraint("PointOnObject", 10, 2, -2))
sketch7.addConstraint(Sketcher.Constraint("Horizontal", 2, 2, 5, 2))
sketch7.addConstraint(Sketcher.Constraint("Horizontal", 0, 2, 7, 2))
sketch7.addConstraint(Sketcher.Constraint("Horizontal", 12, 2, 15, 2))
sketch7.addConstraint(Sketcher.Constraint("Horizontal", 10, 2, 17, 2))
sketch7.addConstraint(Sketcher.Constraint("Vertical", 5, 2, 12, 2))
sketch7.addConstraint(Sketcher.Constraint("Vertical", 3, 2, 14, 2))
sketch7.addConstraint(Sketcher.Constraint("Vertical", 1, 2, 16, 2))
sketch7.addConstraint(Sketcher.Constraint("Equal", 2, 6))
sketch7.addConstraint(Sketcher.Constraint("Equal", 1, 3))
sketch7.addConstraint(Sketcher.Constraint("Equal", 7, 11))
sketch7.addConstraint(Sketcher.Constraint("Equal", 11, 13))
sketch7.addConstraint(Sketcher.Constraint("Equal", 8, 10))
sketch7.addConstraint(Sketcher.Constraint("Equal", 0, 18))
sketch7.addConstraint(Sketcher.Constraint("DistanceX", 2, 2, 2, 1, 0.5))
sketch7.addConstraint(Sketcher.Constraint("DistanceX", 4, 2, 4, 1, 4.5))
sketch7.addConstraint(Sketcher.Constraint("DistanceY", 9, 2, 9, 1, 8.5))
sketch7.addConstraint(Sketcher.Constraint("DistanceY", 19, 1, 19, 2, 17.5))
sketch7.addConstraint(Sketcher.Constraint("DistanceY", 8, 2, -1, 1, 30.0))
sketch7.addConstraint(Sketcher.Constraint("DistanceY", 10, 2, -1, 1, 56.0))
sketch7.addConstraint(Sketcher.Constraint("DistanceX", 8, 2, 0, 2, 13.0))
sketch7.addConstraint(Sketcher.Constraint("DistanceX", 9, 2, 18, 2, 11.0))
sketch7.setExpression("Constraints[52]", "Params.sketch7_width")
sketch7.setExpression("Constraints[53]", "Params.sketch7_width2")
sketch7.setExpression("Constraints[54]", "Params.sketch7_height")
sketch7.setExpression("Constraints[55]", "Params.sketch7_height2")
pad6 = body12.newObject("PartDesign::Pad", "Pad005")
pad6.Profile = sketch7
pad6.setExpression("Length", "Params.pad6_length")
body13 = doc.addObject("PartDesign::Body", "Body012")
doc.recompute()

body12.Placement = App.Placement(V(35.7, 1, -2.3), App.Rotation(V(0, -1, 0), 90))
boolean6 = body13.newObject("PartDesign::Boolean", "Boolean005")
boolean6.Type = "Fuse"
boolean6.addObjects([body12])
doc.recompute()

boolean7 = body13.newObject("PartDesign::Boolean", "Boolean006")
boolean7.Type = "Fuse"
boolean7.addObjects([body11])
doc.recompute()

boolean8 = body13.newObject("PartDesign::Boolean", "Boolean007")
boolean8.Type = "Fuse"
boolean8.addObjects([body3])
doc.recompute()

boolean9 = body13.newObject("PartDesign::Boolean", "Boolean008")
boolean9.Type = "Fuse"
boolean9.addObjects([body5])
doc.recompute()

boolean10 = body13.newObject("PartDesign::Boolean", "Boolean009")
boolean10.Type = "Fuse"
boolean10.addObjects([body7])
doc.recompute()

boolean11 = body13.newObject("PartDesign::Boolean", "Boolean010")
boolean11.Type = "Fuse"
boolean11.addObjects([body9])
doc.recompute()

boolean12 = body13.newObject("PartDesign::Boolean", "Boolean011")
boolean12.Type = "Cut"
boolean12.addObjects([body])
body14 = doc.addObject("PartDesign::Body", "Body013")
doc.recompute()

body13.Placement = App.Placement(V(0, 1.5, 0), App.Rotation(V(0, 0, 1), 0))
boolean13 = body14.newObject("PartDesign::Boolean", "Boolean012")
boolean13.Type = "Fuse"
boolean13.addObjects([body13])

doc.recompute()
